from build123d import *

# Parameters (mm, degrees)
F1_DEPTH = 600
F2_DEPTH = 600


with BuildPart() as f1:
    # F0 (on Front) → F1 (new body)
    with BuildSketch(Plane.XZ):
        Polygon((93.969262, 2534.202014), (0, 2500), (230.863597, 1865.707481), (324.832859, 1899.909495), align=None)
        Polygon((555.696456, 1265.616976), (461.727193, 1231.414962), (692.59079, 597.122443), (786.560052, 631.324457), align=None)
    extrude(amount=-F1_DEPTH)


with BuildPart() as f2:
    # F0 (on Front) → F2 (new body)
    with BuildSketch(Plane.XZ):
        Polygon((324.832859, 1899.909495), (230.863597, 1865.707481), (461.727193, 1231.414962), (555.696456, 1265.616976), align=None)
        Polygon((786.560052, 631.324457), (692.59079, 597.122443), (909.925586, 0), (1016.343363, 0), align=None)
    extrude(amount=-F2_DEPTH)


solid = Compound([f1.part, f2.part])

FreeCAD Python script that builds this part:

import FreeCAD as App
import Part
import Sketcher

V = App.Vector
Q = App.Units.Quantity

doc = App.newDocument("Part")
body = doc.addObject("PartDesign::Body", "Body")
body.AllowCompound = True

# Sketch on XZ plane
sketch1 = body.newObject("Sketcher::SketchObject", "Sketch")
sketch1.AttachmentSupport = (doc.getObject("XZ_Plane"), [""])
sketch1.MapMode = "FlatFace"
sketch1.addGeometry([
    Part.LineSegment(V(94, 2534, 0), V(0, 2500, 0)),  # 0
    Part.LineSegment(V(0, 2500, 0), V(231, 1866, 0)),  # 1
    Part.LineSegment(V(231, 1866, 0), V(325, 1900, 0)),  # 2
    Part.LineSegment(V(325, 1900, 0), V(94, 2534, 0)),  # 3
    Part.LineSegment(V(556, 1266, 0), V(462, 1231, 0)),  # 4
    Part.LineSegment(V(462, 1231, 0), V(693, 597, 0)),  # 5
    Part.LineSegment(V(693, 597, 0), V(787, 631, 0)),  # 6
    Part.LineSegment(V(787, 631, 0), V(556, 1266, 0)),  # 7
], False)
sketch1.addConstraint([
    Sketcher.Constraint("Coincident", 0, 2, 1, 1),
    Sketcher.Constraint("Coincident", 1, 2, 2, 1),
    Sketcher.Constraint("Coincident", 2, 2, 3, 1),
    Sketcher.Constraint("Coincident", 3, 2, 0, 1),
    Sketcher.Constraint("Coincident", 4, 2, 5, 1),
    Sketcher.Constraint("Coincident", 5, 2, 6, 1),
    Sketcher.Constraint("Coincident", 6, 2, 7, 1),
    Sketcher.Constraint("Coincident", 7, 2, 4, 1),
    Sketcher.Constraint("PointOnObject", 0, 2, -2),
    Sketcher.Constraint("Perpendicular", 0, 1),
    Sketcher.Constraint("Perpendicular", 1, 2),
    Sketcher.Constraint("Perpendicular", 2, 3),
    Sketcher.Constraint("Perpendicular", 3, 4),
    Sketcher.Constraint("Perpendicular", 4, 5),
    Sketcher.Constraint("Perpendicular", 5, 6),
    Sketcher.Constraint("Perpendicular", 6, 7),
    Sketcher.Constraint("Equal", 2, 4),
    Sketcher.Constraint("Equal", 3, 5),
    Sketcher.Constraint("Angle", 0, Q("-160 deg")),
    Sketcher.Constraint("Distance", 0, 100.0),
    Sketcher.Constraint("Distance", 1, 675.0),
    Sketcher.Constraint("DistanceY", -1, 1, 0, 2, 2500.0),
    Sketcher.Constraint("DistanceY", -1, 1, 4, 2, 1231.414962),
    Sketcher.Constraint("DistanceX", -1, 1, 5, 2, 692.59079),
])
pad1 = body.newObject("PartDesign::Pad", "Pad")
pad1.Profile = sketch1
pad1.Length = 600
pad1.Reversed = True
body2 = doc.addObject("PartDesign::Body", "Body001")
body2.AllowCompound = True

# Sketch on XZ plane
sketch2 = body2.newObject("Sketcher::SketchObject", "Sketch001")
sketch2.AttachmentSupport = (doc.getObject("XZ_Plane001"), [""])
sketch2.MapMode = "FlatFace"
sketch2.addGeometry([
    Part.LineSegment(V(325, 1900, 0), V(231, 1866, 0)),  # 0
    Part.LineSegment(V(231, 1866, 0), V(462, 1231, 0)),  # 1
    Part.LineSegment(V(462, 1231, 0), V(556, 1266, 0)),  # 2
    Part.LineSegment(V(556, 1266, 0), V(325, 1900, 0)),  # 3
    Part.LineSegment(V(787, 631, 0), V(693, 597, 0)),  # 4
    Part.LineSegment(V(693, 597, 0), V(910, 0, 0)),  # 5
    Part.LineSegment(V(910, 0, 0), V(1016, 0, 0)),  # 6
    Part.LineSegment(V(1016, 0, 0), V(787, 631, 0)),  # 7
], False)
sketch2.addConstraint([
    Sketcher.Constraint("Coincident", 0, 2, 1, 1),
    Sketcher.Constraint("Coincident", 1, 2, 2, 1),
    Sketcher.Constraint("Coincident", 2, 2, 3, 1),
    Sketcher.Constraint("Coincident", 3, 2, 0, 1),
    Sketcher.Constraint("Coincident", 4, 2, 5, 1),
    Sketcher.Constraint("Coincident", 5, 2, 6, 1),
    Sketcher.Constraint("Coincident", 6, 2, 7, 1),
    Sketcher.Constraint("Coincident", 7, 2, 4, 1),
    Sketcher.Constraint("Horizontal", 6),
    Sketcher.Constraint("PointOnObject", 5, 2, -1),
    Sketcher.Constraint("Perpendicular", 0, 1),
    Sketcher.Constraint("Perpendicular", 1, 2),
    Sketcher.Constraint("Perpendicular", 2, 3),
    Sketcher.Constraint("Perpendicular", 3, 4),
    Sketcher.Constraint("Perpendicular", 4, 5),
    Sketcher.Constraint("Parallel", 5, 7),
    Sketcher.Constraint("Equal", 2, 4),
    Sketcher.Constraint("Angle", 0, Q("-160 deg")),
    Sketcher.Constraint("Distance", 0, 100.0),
    Sketcher.Constraint("Distance", 1, 675.0),
    Sketcher.Constraint("Distance", 5, 635.444431),
    Sketcher.Constraint("DistanceY", -1, 1, 0, 2, 1865.707481),
    Sketcher.Constraint("DistanceX", -1, 1, 3, 2, 324.832859),
    Sketcher.Constraint("DistanceX", -1, 1, 4, 2, 692.59079),
])
pad2 = body2.newObject("PartDesign::Pad", "Pad001")
pad2.Profile = sketch2
pad2.Length = 600
pad2.Reversed = True

doc.recompute()
